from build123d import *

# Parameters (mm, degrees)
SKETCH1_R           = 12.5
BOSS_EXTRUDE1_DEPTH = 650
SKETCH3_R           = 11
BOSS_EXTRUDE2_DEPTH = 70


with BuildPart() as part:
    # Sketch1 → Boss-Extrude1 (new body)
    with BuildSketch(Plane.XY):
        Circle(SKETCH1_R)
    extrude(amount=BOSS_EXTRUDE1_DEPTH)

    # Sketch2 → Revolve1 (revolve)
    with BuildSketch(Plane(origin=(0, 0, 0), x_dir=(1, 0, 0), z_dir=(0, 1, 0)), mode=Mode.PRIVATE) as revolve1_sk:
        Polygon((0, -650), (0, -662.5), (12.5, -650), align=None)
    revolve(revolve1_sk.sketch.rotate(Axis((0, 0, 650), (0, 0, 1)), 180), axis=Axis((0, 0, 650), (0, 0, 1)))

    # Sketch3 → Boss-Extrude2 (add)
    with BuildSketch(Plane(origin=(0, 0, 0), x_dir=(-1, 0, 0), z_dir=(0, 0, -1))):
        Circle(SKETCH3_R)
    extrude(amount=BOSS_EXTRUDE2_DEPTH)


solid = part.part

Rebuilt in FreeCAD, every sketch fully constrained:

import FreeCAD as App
import Part
import Sketcher
Q = App.Units.Quantity


def add_polygon(sketch, points):
    """Adds a closed chain of lines whose ends are joined by coincident constraints."""
    first, n = sketch.GeometryCount, len(points)
    for a, b in zip(points, points[1:] + points[:1]):
        sketch.addGeometry(Part.LineSegment(App.Vector(*a, 0), App.Vector(*b, 0)), False)
    for i in range(n):
        sketch.addConstraint(Sketcher.Constraint("Coincident", first + i, 2, first + (i + 1) % n, 1))

doc = App.newDocument("Part")
body = doc.addObject("PartDesign::Body", "Body")

sketch1 = body.newObject("Sketcher::SketchObject", "Sketch")
sketch1.AttachmentSupport = (doc.getObject("XY_Plane"), [""])
sketch1.MapMode = "FlatFace"
sketch1.addGeometry(Part.Circle(App.Vector(0, 0, 0), App.Vector(0, 0, 1), 12.5), False)
sketch1.addConstraint([
    Sketcher.Constraint("Coincident", 0, 3, -1, 1),
    Sketcher.Constraint("Diameter", 0, Q("25 mm")),
])
pad1 = body.newObject("PartDesign::Pad", "Pad")
pad1.Profile = sketch1
pad1.Length = 650

sketch2 = body.newObject("Sketcher::SketchObject", "Sketch001")
sketch2.AttachmentSupport = (doc.getObject("XZ_Plane"), [""])
sketch2.MapMode = "FlatFace"
add_polygon(sketch2, [(0, 650), (0, 662.5), (12.5, 650)])
sketch2.addConstraint([
    Sketcher.Constraint("Vertical", 0),
    Sketcher.Constraint("Horizontal", 2),
    Sketcher.Constraint("PointOnObject", 0, 2, -2),
    Sketcher.Constraint("Equal", 2, 0),
    Sketcher.Constraint("DistanceX", 2, 2, 2, 1, Q("12.5 mm")),
    Sketcher.Constraint("DistanceY", -1, 1, 1, 2, Q("650 mm")),
])
revolution = body.newObject("PartDesign::Revolution", "Revolution")
revolution.Profile = sketch2
revolution.ReferenceAxis = (sketch2, ["V_Axis"])
revolution.Angle = 360

sketch3 = body.newObject("Sketcher::SketchObject", "Sketch002")
sketch3.AttachmentSupport = (doc.getObject("XY_Plane"), [""])
sketch3.MapMode = "FlatFace"
sketch3.addGeometry(Part.Circle(App.Vector(0, 0, 0), App.Vector(0, 0, 1), 11), False)
sketch3.addConstraint([
    Sketcher.Constraint("Coincident", 0, 3, -1, 1),
    Sketcher.Constraint("Diameter", 0, Q("22 mm")),
])
pad2 = body.newObject("PartDesign::Pad", "Pad001")
pad2.Profile = sketch3
pad2.Length = 70
pad2.Reversed = True

doc.recompute()
